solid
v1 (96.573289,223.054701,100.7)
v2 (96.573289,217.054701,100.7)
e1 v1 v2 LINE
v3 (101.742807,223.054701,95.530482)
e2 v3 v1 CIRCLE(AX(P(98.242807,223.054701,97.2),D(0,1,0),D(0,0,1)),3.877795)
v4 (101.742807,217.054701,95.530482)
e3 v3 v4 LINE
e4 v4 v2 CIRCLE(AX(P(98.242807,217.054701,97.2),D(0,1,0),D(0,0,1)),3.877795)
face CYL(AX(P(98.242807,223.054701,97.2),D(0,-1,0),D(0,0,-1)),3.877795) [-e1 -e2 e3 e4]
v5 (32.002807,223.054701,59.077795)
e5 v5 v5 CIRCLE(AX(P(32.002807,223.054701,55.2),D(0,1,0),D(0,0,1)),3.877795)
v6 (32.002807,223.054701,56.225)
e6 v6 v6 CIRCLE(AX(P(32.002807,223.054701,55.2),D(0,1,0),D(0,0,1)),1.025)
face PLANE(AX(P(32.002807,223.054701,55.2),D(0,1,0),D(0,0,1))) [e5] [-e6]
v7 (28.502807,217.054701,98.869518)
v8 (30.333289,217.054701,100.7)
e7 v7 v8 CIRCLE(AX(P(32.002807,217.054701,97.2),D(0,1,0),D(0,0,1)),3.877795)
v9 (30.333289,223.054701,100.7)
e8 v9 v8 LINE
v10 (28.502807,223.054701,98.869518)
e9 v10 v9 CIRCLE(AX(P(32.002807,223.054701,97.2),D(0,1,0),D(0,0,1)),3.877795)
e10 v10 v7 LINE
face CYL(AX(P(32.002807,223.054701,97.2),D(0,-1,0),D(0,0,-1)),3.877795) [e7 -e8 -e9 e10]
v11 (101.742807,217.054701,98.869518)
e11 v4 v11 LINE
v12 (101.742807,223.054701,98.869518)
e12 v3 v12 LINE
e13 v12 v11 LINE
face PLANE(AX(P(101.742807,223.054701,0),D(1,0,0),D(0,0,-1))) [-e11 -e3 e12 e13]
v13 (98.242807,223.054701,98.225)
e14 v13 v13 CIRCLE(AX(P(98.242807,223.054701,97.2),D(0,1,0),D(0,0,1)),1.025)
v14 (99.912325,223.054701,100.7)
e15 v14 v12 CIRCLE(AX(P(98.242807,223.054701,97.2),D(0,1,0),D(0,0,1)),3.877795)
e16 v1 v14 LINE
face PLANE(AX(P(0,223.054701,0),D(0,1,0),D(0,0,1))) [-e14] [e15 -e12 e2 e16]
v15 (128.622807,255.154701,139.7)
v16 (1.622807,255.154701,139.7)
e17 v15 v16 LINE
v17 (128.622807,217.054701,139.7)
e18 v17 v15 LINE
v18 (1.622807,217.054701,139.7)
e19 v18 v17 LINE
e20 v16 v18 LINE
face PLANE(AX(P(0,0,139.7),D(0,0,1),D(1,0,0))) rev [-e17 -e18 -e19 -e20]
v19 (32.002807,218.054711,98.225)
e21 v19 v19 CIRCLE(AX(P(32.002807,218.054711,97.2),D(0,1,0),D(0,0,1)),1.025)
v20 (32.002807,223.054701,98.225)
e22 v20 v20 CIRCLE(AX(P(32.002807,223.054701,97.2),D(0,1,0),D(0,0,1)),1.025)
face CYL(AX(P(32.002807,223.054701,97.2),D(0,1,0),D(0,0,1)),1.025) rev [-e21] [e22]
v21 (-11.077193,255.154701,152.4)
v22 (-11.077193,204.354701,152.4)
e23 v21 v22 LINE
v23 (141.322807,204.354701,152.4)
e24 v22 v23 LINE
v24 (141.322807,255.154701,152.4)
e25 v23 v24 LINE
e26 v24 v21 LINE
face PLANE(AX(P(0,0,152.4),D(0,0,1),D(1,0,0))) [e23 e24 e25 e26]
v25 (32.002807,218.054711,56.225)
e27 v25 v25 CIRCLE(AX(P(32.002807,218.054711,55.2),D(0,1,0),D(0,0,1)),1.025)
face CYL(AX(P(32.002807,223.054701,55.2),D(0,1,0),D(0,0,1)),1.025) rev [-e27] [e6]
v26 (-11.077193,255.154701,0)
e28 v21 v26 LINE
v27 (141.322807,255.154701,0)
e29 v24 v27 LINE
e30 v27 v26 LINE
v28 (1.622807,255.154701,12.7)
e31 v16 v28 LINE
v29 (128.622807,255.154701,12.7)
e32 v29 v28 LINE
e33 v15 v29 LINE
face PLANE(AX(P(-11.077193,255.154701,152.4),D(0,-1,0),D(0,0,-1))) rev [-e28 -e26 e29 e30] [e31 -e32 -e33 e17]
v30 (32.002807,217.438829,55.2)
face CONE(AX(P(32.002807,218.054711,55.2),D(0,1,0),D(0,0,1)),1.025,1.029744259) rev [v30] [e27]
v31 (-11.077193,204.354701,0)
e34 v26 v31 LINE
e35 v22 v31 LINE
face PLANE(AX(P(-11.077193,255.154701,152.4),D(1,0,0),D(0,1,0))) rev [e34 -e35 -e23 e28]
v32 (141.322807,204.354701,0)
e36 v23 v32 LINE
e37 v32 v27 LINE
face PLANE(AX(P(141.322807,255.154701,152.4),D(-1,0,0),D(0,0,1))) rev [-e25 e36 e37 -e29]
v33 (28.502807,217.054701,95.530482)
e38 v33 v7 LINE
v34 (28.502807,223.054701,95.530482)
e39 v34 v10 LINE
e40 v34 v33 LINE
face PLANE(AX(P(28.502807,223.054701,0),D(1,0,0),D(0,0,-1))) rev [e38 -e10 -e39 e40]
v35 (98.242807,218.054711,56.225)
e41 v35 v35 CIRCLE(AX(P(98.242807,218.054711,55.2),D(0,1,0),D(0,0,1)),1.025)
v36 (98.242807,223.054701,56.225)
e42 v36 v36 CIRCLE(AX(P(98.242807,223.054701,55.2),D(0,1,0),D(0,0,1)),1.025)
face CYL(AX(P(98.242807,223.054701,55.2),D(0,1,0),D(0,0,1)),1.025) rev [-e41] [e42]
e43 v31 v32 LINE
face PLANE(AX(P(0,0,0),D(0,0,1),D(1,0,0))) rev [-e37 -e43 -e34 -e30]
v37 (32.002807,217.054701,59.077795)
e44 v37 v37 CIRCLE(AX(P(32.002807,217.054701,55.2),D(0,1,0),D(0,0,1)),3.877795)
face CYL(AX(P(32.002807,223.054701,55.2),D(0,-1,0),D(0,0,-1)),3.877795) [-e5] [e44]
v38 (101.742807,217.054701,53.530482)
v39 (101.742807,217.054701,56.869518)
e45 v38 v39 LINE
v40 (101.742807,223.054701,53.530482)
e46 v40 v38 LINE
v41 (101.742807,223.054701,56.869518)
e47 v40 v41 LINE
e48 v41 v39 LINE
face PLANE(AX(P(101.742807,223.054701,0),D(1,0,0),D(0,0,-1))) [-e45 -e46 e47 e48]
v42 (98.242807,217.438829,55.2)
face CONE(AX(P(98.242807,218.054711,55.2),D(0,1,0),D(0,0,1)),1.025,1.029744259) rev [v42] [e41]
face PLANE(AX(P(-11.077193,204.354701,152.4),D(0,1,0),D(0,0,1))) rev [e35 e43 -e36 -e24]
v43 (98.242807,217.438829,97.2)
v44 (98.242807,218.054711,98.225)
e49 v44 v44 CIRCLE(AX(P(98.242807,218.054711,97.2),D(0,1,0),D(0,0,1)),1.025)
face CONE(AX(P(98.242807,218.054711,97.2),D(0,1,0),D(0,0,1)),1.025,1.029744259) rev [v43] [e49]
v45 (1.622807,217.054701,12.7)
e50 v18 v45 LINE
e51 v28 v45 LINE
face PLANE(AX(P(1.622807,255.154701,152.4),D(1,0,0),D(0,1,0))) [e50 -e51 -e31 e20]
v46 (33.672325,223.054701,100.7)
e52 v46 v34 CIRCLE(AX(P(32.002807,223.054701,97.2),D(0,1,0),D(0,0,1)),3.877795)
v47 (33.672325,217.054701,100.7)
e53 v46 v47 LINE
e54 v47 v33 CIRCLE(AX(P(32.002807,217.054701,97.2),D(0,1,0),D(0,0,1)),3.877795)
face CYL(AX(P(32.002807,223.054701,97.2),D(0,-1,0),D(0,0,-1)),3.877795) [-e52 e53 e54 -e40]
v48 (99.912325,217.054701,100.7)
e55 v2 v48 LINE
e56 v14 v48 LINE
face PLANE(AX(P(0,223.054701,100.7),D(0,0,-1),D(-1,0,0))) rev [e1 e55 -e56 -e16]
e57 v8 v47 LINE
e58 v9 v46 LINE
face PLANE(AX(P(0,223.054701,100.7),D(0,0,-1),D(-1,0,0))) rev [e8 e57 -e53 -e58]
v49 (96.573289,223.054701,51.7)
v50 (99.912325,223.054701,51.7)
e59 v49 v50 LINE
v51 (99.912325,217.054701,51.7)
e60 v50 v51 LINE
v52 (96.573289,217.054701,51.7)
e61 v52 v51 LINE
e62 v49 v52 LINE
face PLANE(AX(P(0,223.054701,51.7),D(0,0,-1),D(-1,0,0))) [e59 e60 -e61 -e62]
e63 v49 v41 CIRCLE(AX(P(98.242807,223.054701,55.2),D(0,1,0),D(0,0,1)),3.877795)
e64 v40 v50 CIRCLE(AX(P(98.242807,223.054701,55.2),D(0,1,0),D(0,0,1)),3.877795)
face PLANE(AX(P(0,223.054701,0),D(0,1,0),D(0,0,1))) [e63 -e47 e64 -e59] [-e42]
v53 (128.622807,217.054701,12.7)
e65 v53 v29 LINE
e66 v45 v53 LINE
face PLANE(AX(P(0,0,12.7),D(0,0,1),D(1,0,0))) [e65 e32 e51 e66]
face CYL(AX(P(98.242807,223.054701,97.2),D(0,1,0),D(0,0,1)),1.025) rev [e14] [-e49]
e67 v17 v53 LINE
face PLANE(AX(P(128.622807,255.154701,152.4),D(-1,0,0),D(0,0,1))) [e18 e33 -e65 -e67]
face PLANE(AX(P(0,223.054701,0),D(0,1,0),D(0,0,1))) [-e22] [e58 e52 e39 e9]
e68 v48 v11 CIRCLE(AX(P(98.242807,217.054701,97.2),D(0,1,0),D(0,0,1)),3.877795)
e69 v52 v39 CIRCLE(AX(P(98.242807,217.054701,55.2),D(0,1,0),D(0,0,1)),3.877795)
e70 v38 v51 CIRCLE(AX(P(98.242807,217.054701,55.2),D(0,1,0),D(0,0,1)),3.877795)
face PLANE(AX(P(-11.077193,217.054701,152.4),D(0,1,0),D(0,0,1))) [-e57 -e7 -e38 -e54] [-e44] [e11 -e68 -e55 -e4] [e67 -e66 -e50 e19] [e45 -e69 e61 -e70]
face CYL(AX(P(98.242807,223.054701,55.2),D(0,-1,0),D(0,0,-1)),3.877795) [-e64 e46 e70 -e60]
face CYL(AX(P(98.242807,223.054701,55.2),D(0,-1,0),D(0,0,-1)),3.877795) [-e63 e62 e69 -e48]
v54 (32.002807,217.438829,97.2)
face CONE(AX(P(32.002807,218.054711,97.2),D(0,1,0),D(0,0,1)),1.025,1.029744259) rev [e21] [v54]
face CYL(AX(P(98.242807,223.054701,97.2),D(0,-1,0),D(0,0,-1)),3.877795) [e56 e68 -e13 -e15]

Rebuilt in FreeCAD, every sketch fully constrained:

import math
import FreeCAD as App
import Part
import Sketcher
Q = App.Units.Quantity


def faces_at(feature, points):
    """Names of the faces that lie closest to the given points."""
    faces = feature.Shape.Faces
    near = lambda p: min(range(len(faces)), key=lambda i: faces[i].distToShape(Part.Vertex(*p))[0])
    return sorted({f"Face{near(p) + 1}" for p in points})


def add_polygon(sketch, points):
    """Adds a closed chain of lines whose ends are joined by coincident constraints."""
    first, n = sketch.GeometryCount, len(points)
    for a, b in zip(points, points[1:] + points[:1]):
        sketch.addGeometry(Part.LineSegment(App.Vector(*a, 0), App.Vector(*b, 0)), False)
    for i in range(n):
        sketch.addConstraint(Sketcher.Constraint("Coincident", first + i, 2, first + (i + 1) % n, 1))

doc = App.newDocument("Part")
body = doc.addObject("PartDesign::Body", "Body")

sketch1 = body.newObject("Sketcher::SketchObject", "Sketch")
sketch1.AttachmentSupport = (doc.getObject("XY_Plane"), [""])
sketch1.MapMode = "FlatFace"
add_polygon(sketch1, [(-11, 255), (-11, 204), (141, 204), (141, 255)])
sketch1.addConstraint([
    Sketcher.Constraint("Vertical", 0),
    Sketcher.Constraint("Horizontal", 1),
    Sketcher.Constraint("Vertical", 2),
    Sketcher.Constraint("Horizontal", 3),
    Sketcher.Constraint("DistanceX", 1, 1, 1, 2, Q("6 in")),
    Sketcher.Constraint("DistanceY", 0, 2, 0, 1, Q("2 in")),
    Sketcher.Constraint("DistanceY", -1, 1, 0, 2, 204.354701),
    Sketcher.Constraint("DistanceX", 0, 2, -1, 1, 11.077193),
])
pad1 = body.newObject("PartDesign::Pad", "Pad")
pad1.Profile = sketch1
pad1.Length = Q("6 in")
doc.recompute()

thickness = body.newObject("PartDesign::Thickness", "Thickness")
thickness.Base = (pad1, faces_at(pad1, [(65.123, 255.155, 76.2)]))
thickness.Value = Q("0.5 in")
thickness.Reversed = True
thickness.Join = "Intersection"

sketch2 = body.newObject("Sketcher::SketchObject", "Sketch001")
sketch2.AttachmentSupport = (doc.getObject("XZ_Plane"), [""])
sketch2.MapMode = "FlatFace"
sketch2.AttachmentOffset = App.Placement(App.Vector(0, 0, -217.054701), App.Rotation())
sketch2.addGeometry([
    Part.Circle(App.Vector(32, 55.2, 0), App.Vector(0, 0, 1), 3.9),
    Part.LineSegment(App.Vector(99.9, 51.7, 0), App.Vector(96.6, 51.7, 0)),
    Part.ArcOfCircle(Part.Circle(App.Vector(98.2, 55.2, 0), App.Vector(0, 0, 1), 3.9), math.radians(26), math.radians(244)),
    Part.LineSegment(App.Vector(101.7, 56.9, 0), App.Vector(101.7, 53.5, 0)),
    Part.ArcOfCircle(Part.Circle(App.Vector(98.2, 55.2, 0), App.Vector(0, 0, 1), 3.9), math.radians(-64), math.radians(-26)),
    Part.ArcOfCircle(Part.Circle(App.Vector(32, 97.2, 0), App.Vector(0, 0, 1), 3.9), math.radians(-154), math.radians(64)),
    Part.LineSegment(App.Vector(28.5, 95.5, 0), App.Vector(28.5, 98.9, 0)),
    Part.ArcOfCircle(Part.Circle(App.Vector(32, 97.2, 0), App.Vector(0, 0, 1), 3.9), math.radians(116), math.radians(154)),
    Part.LineSegment(App.Vector(30.3, 100.7, 0), App.Vector(33.7, 100.7, 0)),
    Part.LineSegment(App.Vector(101.7, 98.9, 0), App.Vector(101.7, 95.5, 0)),
    Part.ArcOfCircle(Part.Circle(App.Vector(98.2, 97.2, 0), App.Vector(0, 0, 1), 3.9), math.radians(116), math.radians(334)),
    Part.LineSegment(App.Vector(96.6, 100.7, 0), App.Vector(99.9, 100.7, 0)),
    Part.ArcOfCircle(Part.Circle(App.Vector(98.2, 97.2, 0), App.Vector(0, 0, 1), 3.9), math.radians(26), math.radians(64)),
], False)
sketch2.addConstraint([
    Sketcher.Constraint("Coincident", 1, 2, 2, 2),
    Sketcher.Constraint("Coincident", 2, 1, 3, 1),
    Sketcher.Constraint("Coincident", 3, 2, 4, 2),
    Sketcher.Constraint("Coincident", 4, 1, 1, 1),
    Sketcher.Constraint("Coincident", 5, 1, 6, 1),
    Sketcher.Constraint("Coincident", 6, 2, 7, 2),
    Sketcher.Constraint("Coincident", 7, 1, 8, 1),
    Sketcher.Constraint("Coincident", 8, 2, 5, 2),
    Sketcher.Constraint("Coincident", 9, 2, 10, 2),
    Sketcher.Constraint("Coincident", 10, 1, 11, 1),
    Sketcher.Constraint("Coincident", 11, 2, 12, 2),
    Sketcher.Constraint("Coincident", 12, 1, 9, 1),
    Sketcher.Constraint("Horizontal", 1),
    Sketcher.Constraint("Vertical", 3),
    Sketcher.Constraint("Vertical", 6),
    Sketcher.Constraint("Horizontal", 8),
    Sketcher.Constraint("Vertical", 9),
    Sketcher.Constraint("Horizontal", 11),
    Sketcher.Constraint("Coincident", 4, 3, 2, 3),
    Sketcher.Constraint("Coincident", 7, 3, 5, 3),
    Sketcher.Constraint("Coincident", 12, 3, 10, 3),
    Sketcher.Constraint("Equal", 0, 2),
    Sketcher.Constraint("Equal", 2, 4),
    Sketcher.Constraint("Equal", 4, 5),
    Sketcher.Constraint("Equal", 5, 7),
    Sketcher.Constraint("Equal", 7, 10),
    Sketcher.Constraint("Equal", 10, 12),
    Sketcher.Constraint("Horizontal", 0, 3, 2, 3),
    Sketcher.Constraint("Horizontal", 7, 3, 10, 3),
    Sketcher.Constraint("Horizontal", 5, 1, 9, 2),
    Sketcher.Constraint("Horizontal", 8, 2, 10, 1),
    Sketcher.Constraint("Vertical", 0, 3, 5, 3),
    Sketcher.Constraint("Vertical", 4, 3, 10, 3),
    Sketcher.Constraint("Vertical", 3, 2, 9, 2),
    Sketcher.Constraint("Vertical", 1, 2, 10, 1),
    Sketcher.Constraint("Equal", 11, 3),
    Sketcher.Constraint("Diameter", 0, 7.755589),
    Sketcher.Constraint("DistanceY", -1, 1, 0, 3, 55.2),
    Sketcher.Constraint("DistanceY", -1, 1, 5, 3, 97.2),
    Sketcher.Constraint("DistanceY", -1, 1, 1, 2, 51.7),
    Sketcher.Constraint("DistanceX", 0, 3, 2, 3, 66.24),
    Sketcher.Constraint("DistanceX", -1, 1, 1, 2, 96.573289),
])
pad2 = body.newObject("PartDesign::Pad", "Pad001")
pad2.Profile = sketch2
pad2.Length = 6
pad2.Reversed = True

sketch3 = body.newObject("Sketcher::SketchObject", "Sketch002")
sketch3.AttachmentSupport = (doc.getObject("XZ_Plane"), [""])
sketch3.MapMode = "FlatFace"
sketch3.AttachmentOffset = App.Placement(App.Vector(0, 0, -223.054701), App.Rotation())
sketch3.addGeometry([
    Part.Circle(App.Vector(32, 55.2, 0), App.Vector(0, 0, 1), 1),
    Part.Circle(App.Vector(98.2, 55.2, 0), App.Vector(0, 0, 1), 1),
    Part.Circle(App.Vector(98.2, 97.2, 0), App.Vector(0, 0, 1), 1),
    Part.Circle(App.Vector(32, 97.2, 0), App.Vector(0, 0, 1), 1),
], False)
sketch3.addConstraint([
    Sketcher.Constraint("Equal", 0, 1),
    Sketcher.Constraint("Equal", 1, 2),
    Sketcher.Constraint("Equal", 2, 3),
    Sketcher.Constraint("Horizontal", 0, 3, 1, 3),
    Sketcher.Constraint("Horizontal", 2, 3, 3, 3),
    Sketcher.Constraint("Vertical", 1, 3, 2, 3),
    Sketcher.Constraint("Vertical", 0, 3, 3, 3),
    Sketcher.Constraint("Diameter", 0, 2.05),
    Sketcher.Constraint("DistanceY", -1, 1, 0, 3, 55.2),
    Sketcher.Constraint("DistanceY", -1, 1, 2, 3, 97.2),
    Sketcher.Constraint("DistanceX", 0, 3, 1, 3, 66.24),
    Sketcher.Constraint("DistanceX", -1, 1, 0, 3, 32.002807),
])
doc.recompute()
hole = body.newObject("PartDesign::Hole", "Hole")
hole.Profile = sketch3
hole.ThreadType = "None"
hole.Diameter = 2.05
hole.DepthType = "Dimension"
hole.Depth = 4.99999
hole.DrillPoint = "Angled"
hole.DrillPointAngle = 118
hole.Reversed = True

doc.recompute()
